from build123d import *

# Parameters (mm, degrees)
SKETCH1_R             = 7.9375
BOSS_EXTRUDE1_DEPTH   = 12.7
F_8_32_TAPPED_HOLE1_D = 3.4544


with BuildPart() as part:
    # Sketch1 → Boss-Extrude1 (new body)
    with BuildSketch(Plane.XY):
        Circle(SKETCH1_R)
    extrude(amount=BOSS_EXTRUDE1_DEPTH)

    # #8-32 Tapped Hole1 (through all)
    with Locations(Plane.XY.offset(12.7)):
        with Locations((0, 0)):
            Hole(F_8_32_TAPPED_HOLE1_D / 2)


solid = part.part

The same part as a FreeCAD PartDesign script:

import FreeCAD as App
import Part
import Sketcher
from FreeCAD import Vector
Q = App.Units.Quantity

doc = App.newDocument("Part")
body = doc.addObject("PartDesign::Body", "Body")

# Sketch on XY plane
sketch1 = body.newObject("Sketcher::SketchObject", "Sketch")
sketch1.AttachmentSupport = (doc.getObject("XY_Plane"), [""])
sketch1.MapMode = "FlatFace"
sketch1.addGeometry(Part.Circle(Vector(0, 0, 0), Vector(0, 0, 1), 8), False)
sketch1.addConstraint(Sketcher.Constraint("Coincident", 0, 3, -1, 1))
sketch1.addConstraint(Sketcher.Constraint("Diameter", 0, Q("0.625 in")))
pad1 = body.newObject("PartDesign::Pad", "Pad")
pad1.Profile = sketch1
pad1.Length = Q("0.5 in")

# Sketch on XY plane
sketch2 = body.newObject("Sketcher::SketchObject", "Sketch001")
sketch2.AttachmentSupport = (doc.getObject("XY_Plane"), [""])
sketch2.MapMode = "FlatFace"
sketch2.AttachmentOffset = App.Placement(Vector(0, 0, 0.5 * 25.4), App.Rotation())
sketch2.addGeometry(Part.Circle(Vector(0, 0, 0), Vector(0, 0, 1), 1.7), False)
sketch2.addConstraint(Sketcher.Constraint("Coincident", 0, 3, -1, 1))
sketch2.addConstraint(Sketcher.Constraint("Diameter", 0, Q("0.136 in")))
doc.recompute()
hole = body.newObject("PartDesign::Hole", "Hole")
hole.Profile = sketch2
hole.ThreadType = "None"
hole.Diameter = Q("0.136 in")
hole.DepthType = "ThroughAll"

doc.recompute()
